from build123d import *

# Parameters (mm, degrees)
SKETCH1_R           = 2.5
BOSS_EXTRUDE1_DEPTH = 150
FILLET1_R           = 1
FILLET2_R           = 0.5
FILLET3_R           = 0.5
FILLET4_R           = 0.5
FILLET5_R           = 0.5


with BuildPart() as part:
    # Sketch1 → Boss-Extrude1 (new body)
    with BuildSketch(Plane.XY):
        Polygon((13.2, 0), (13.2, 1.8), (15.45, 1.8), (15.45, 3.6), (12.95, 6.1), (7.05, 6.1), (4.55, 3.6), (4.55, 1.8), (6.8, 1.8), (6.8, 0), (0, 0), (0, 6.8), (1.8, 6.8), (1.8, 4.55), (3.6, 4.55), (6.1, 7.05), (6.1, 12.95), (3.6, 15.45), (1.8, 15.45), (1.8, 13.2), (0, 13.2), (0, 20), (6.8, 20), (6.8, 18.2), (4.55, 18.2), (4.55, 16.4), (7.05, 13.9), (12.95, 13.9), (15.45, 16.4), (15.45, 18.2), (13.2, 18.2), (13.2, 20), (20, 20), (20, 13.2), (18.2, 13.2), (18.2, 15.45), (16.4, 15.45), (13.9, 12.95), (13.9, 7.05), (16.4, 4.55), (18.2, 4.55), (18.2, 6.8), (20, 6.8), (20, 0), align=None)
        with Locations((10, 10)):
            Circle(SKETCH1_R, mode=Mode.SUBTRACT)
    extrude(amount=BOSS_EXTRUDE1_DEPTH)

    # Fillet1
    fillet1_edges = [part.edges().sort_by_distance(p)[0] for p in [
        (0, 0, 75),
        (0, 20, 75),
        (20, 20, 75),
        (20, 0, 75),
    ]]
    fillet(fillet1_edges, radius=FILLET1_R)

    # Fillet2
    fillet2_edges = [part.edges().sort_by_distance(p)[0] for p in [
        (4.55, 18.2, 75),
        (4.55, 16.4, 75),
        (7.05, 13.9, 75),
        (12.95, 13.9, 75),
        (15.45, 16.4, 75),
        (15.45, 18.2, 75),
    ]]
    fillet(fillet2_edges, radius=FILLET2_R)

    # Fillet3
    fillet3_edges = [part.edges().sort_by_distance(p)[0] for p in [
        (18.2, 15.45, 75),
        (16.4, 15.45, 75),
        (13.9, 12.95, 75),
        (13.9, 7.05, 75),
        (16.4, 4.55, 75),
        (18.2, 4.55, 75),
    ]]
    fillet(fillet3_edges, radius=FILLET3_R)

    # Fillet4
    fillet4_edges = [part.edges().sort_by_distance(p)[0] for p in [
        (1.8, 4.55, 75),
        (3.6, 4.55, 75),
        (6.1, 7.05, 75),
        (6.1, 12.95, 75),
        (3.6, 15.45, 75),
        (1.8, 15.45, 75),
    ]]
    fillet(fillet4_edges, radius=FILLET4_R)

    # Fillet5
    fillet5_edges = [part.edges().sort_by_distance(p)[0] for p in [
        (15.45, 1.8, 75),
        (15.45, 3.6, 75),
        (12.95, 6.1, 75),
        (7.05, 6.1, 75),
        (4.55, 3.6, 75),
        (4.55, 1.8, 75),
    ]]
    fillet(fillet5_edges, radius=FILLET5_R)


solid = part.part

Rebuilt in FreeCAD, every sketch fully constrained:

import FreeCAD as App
import Part
import Sketcher
from FreeCAD import Vector
Q = App.Units.Quantity


def edges_at(feature, points):
    """Names of the edges that pass closest to the given points."""
    edges = feature.Shape.Edges
    near = lambda p: min(range(len(edges)), key=lambda i: edges[i].distToShape(Part.Vertex(*p))[0])
    return sorted({f"Edge{near(p) + 1}" for p in points})


def add_polygon(sketch, points):
    """Adds a closed chain of lines whose ends are joined by coincident constraints."""
    first, n = sketch.GeometryCount, len(points)
    for a, b in zip(points, points[1:] + points[:1]):
        sketch.addGeometry(Part.LineSegment(App.Vector(*a, 0), App.Vector(*b, 0)), False)
    for i in range(n):
        sketch.addConstraint(Sketcher.Constraint("Coincident", first + i, 2, first + (i + 1) % n, 1))

doc = App.newDocument("Part")
params = doc.addObject("Spreadsheet::Sheet", "Params")
for row, (alias, value) in enumerate([
    ("sketch1_diameter", "5 mm"),
    ("sketch1_width", "6.8 mm"),
    ("sketch1_width2", "1.8 mm"),
    ("sketch1_width3", "5.9 mm"),
    ("sketch1_width4", "2.25 mm"),
    ("pad1_length", "150 mm"),
    ("fillet_radius", "1 mm"),
    ("fillet2_radius", "0.5 mm"),
    ("fillet3_radius", "0.5 mm"),
    ("fillet4_radius", "0.5 mm"),
    ("fillet5_radius", "0.5 mm"),
], start=1):
    params.set(f"A{row}", alias)
    params.set(f"B{row}", "=" + value)
    params.setAlias(f"B{row}", alias)

body = doc.addObject("PartDesign::Body", "Body")

# Sketch on XY plane
sketch1 = doc.addObject("Sketcher::SketchObject", "Sketch")
body.addObject(sketch1)
sketch1.AttachmentSupport = (doc.XY_Plane, [""])
sketch1.MapMode = "FlatFace"
add_polygon(sketch1, [(13.2, 1.8), (13.2, 0), (20, 0), (20, 6.8), (18.2, 6.8), (18.2, 4.55), (16.4, 4.55), (13.9, 7.05), (13.9, 12.95), (16.4, 15.45), (18.2, 15.45), (18.2, 13.2), (20, 13.2), (20, 20), (13.2, 20), (13.2, 18.2), (15.45, 18.2), (15.45, 16.4), (12.95, 13.9), (7.05, 13.9), (4.55, 16.4), (4.55, 18.2), (6.8, 18.2), (6.8, 20), (0, 20), (0, 13.2), (1.8, 13.2), (1.8, 15.45), (3.6, 15.45), (6.1, 12.95), (6.1, 7.05), (3.6, 4.55), (1.8, 4.55), (1.8, 6.8), (0, 6.8), (0, 0), (6.8, 0), (6.8, 1.8), (4.55, 1.8), (4.55, 3.6), (7.05, 6.1), (12.95, 6.1), (15.45, 3.6), (15.45, 1.8)])  # lines 0-43
sketch1.addGeometry(Part.Circle(Vector(10, 10, 0), Vector(0, 0, 1), 2.5), False)  # 44
sketch1.addConstraint([
    Sketcher.Constraint("Vertical", 0),
    Sketcher.Constraint("Horizontal", 1),
    Sketcher.Constraint("Vertical", 2),
    Sketcher.Constraint("Horizontal", 3),
    Sketcher.Constraint("Vertical", 4),
    Sketcher.Constraint("Horizontal", 5),
    Sketcher.Constraint("Vertical", 7),
    Sketcher.Constraint("Horizontal", 9),
    Sketcher.Constraint("Vertical", 10),
    Sketcher.Constraint("Horizontal", 11),
    Sketcher.Constraint("Vertical", 12),
    Sketcher.Constraint("Horizontal", 13),
    Sketcher.Constraint("Vertical", 14),
    Sketcher.Constraint("Horizontal", 15),
    Sketcher.Constraint("Vertical", 16),
    Sketcher.Constraint("Horizontal", 18),
    Sketcher.Constraint("Vertical", 20),
    Sketcher.Constraint("Horizontal", 21),
    Sketcher.Constraint("Vertical", 22),
    Sketcher.Constraint("Horizontal", 23),
    Sketcher.Constraint("Vertical", 24),
    Sketcher.Constraint("Horizontal", 25),
    Sketcher.Constraint("Vertical", 26),
    Sketcher.Constraint("Horizontal", 27),
    Sketcher.Constraint("Vertical", 29),
    Sketcher.Constraint("Horizontal", 31),
    Sketcher.Constraint("Vertical", 32),
    Sketcher.Constraint("Horizontal", 33),
    Sketcher.Constraint("Vertical", 34),
    Sketcher.Constraint("Horizontal", 35),
    Sketcher.Constraint("Vertical", 36),
    Sketcher.Constraint("Horizontal", 37),
    Sketcher.Constraint("Vertical", 38),
    Sketcher.Constraint("Horizontal", 40),
    Sketcher.Constraint("Vertical", 42),
    Sketcher.Constraint("Horizontal", 43),
    Sketcher.Constraint("Coincident", 34, 2, -1, 1),
    Sketcher.Constraint("PointOnObject", 0, 2, -1),
    Sketcher.Constraint("PointOnObject", 23, 2, -2),
    Sketcher.Constraint("Perpendicular", 6, 8),
    Sketcher.Constraint("Parallel", 8, 17),
    Sketcher.Constraint("Perpendicular", 17, 19),
    Sketcher.Constraint("Parallel", 19, 28),
    Sketcher.Constraint("Perpendicular", 28, 30),
    Sketcher.Constraint("Parallel", 30, 39),
    Sketcher.Constraint("Perpendicular", 39, 41),
    Sketcher.Constraint("Horizontal", 16, 2, 19, 2),
    Sketcher.Constraint("Horizontal", 15, 2, 20, 2),
    Sketcher.Constraint("Horizontal", 13, 2, 22, 2),
    Sketcher.Constraint("Horizontal", 11, 2, 24, 2),
    Sketcher.Constraint("Horizontal", 9, 2, 26, 2),
    Sketcher.Constraint("Horizontal", 7, 2, 28, 2),
    Sketcher.Constraint("Horizontal", 6, 2, 29, 2),
    Sketcher.Constraint("Horizontal", 5, 2, 30, 2),
    Sketcher.Constraint("Horizontal", 3, 2, 32, 2),
    Sketcher.Constraint("Horizontal", 38, 2, 41, 2),
    Sketcher.Constraint("Horizontal", 37, 2, 42, 2),
    Sketcher.Constraint("Vertical", 5, 2, 8, 2),
    Sketcher.Constraint("Vertical", 4, 2, 9, 2),
    Sketcher.Constraint("Vertical", 2, 2, 11, 2),
    Sketcher.Constraint("Vertical", 0, 2, 13, 2),
    Sketcher.Constraint("Vertical", 27, 2, 30, 2),
    Sketcher.Constraint("Vertical", 26, 2, 31, 2),
    Sketcher.Constraint("Vertical", 22, 2, 35, 2),
    Sketcher.Constraint("Vertical", 20, 2, 37, 2),
    Sketcher.Constraint("Vertical", 18, 2, 39, 2),
    Sketcher.Constraint("Vertical", 17, 2, 40, 2),
    Sketcher.Constraint("Equal", 3, 5),
    Sketcher.Constraint("Equal", 15, 21),
    Sketcher.Constraint("Equal", 13, 23),
    Sketcher.Constraint("Equal", 11, 25),
    Sketcher.Constraint("Equal", 25, 27),
    Sketcher.Constraint("Equal", 33, 0),
    Sketcher.Constraint("Equal", 35, 2),
    Sketcher.Constraint("Equal", 43, 4),
    Sketcher.Constraint("Equal", 40, 7),
    Sketcher.Constraint("Equal", 4, 10),
    Sketcher.Constraint("Equal", 2, 12),
    Sketcher.Constraint("Equal", 0, 14),
    Sketcher.Constraint("Equal", 14, 16),
    Sketcher.Constraint("Equal", 36, 38),
    Sketcher.Constraint("Equal", 8, 17),
    Sketcher.Constraint("Diameter", 44, Q("5 mm")),
    Sketcher.Constraint("DistanceX", 1, 1, 1, 2, Q("6.8 mm")),
    Sketcher.Constraint("DistanceX", 3, 2, 3, 1, Q("1.8 mm")),
    Sketcher.Constraint("DistanceX", 18, 2, 18, 1, Q("5.9 mm")),
    Sketcher.Constraint("DistanceX", -1, 1, 44, 3, Q("10 mm")),
    Sketcher.Constraint("DistanceY", -1, 1, 44, 3, Q("10 mm")),
    Sketcher.Constraint("DistanceX", -1, 1, 1, 2, Q("20 mm")),
    Sketcher.Constraint("DistanceX", 15, 1, 15, 2, Q("2.25 mm")),
])
sketch1.setExpression("Constraints[126]", "Params.sketch1_diameter")
sketch1.setExpression("Constraints[127]", "Params.sketch1_width")
sketch1.setExpression("Constraints[128]", "Params.sketch1_width2")
sketch1.setExpression("Constraints[129]", "Params.sketch1_width3")
sketch1.setExpression("Constraints[133]", "Params.sketch1_width4")
pad1 = doc.addObject("PartDesign::Pad", "Pad")
body.addObject(pad1)
pad1.Profile = sketch1
pad1.setExpression("Length", "Params.pad1_length")
doc.recompute()

fillet = doc.addObject("PartDesign::Fillet", "Fillet")
body.addObject(fillet)
fillet.Base = (pad1, edges_at(pad1, [
    (0, 0, 75),
    (0, 20, 75),
    (20, 20, 75),
    (20, 0, 75),
]))
fillet.setExpression("Radius", "Params.fillet_radius")
doc.recompute()

fillet2 = doc.addObject("PartDesign::Fillet", "Fillet001")
body.addObject(fillet2)
fillet2.Base = (fillet, edges_at(fillet, [
    (4.55, 18.2, 75),
    (4.55, 16.4, 75),
    (7.05, 13.9, 75),
    (12.95, 13.9, 75),
    (15.45, 16.4, 75),
    (15.45, 18.2, 75),
]))
fillet2.setExpression("Radius", "Params.fillet2_radius")
doc.recompute()

fillet3 = doc.addObject("PartDesign::Fillet", "Fillet002")
body.addObject(fillet3)
fillet3.Base = (fillet2, edges_at(fillet2, [
    (18.2, 15.45, 75),
    (16.4, 15.45, 75),
    (13.9, 12.95, 75),
    (13.9, 7.05, 75),
    (16.4, 4.55, 75),
    (18.2, 4.55, 75),
]))
fillet3.setExpression("Radius", "Params.fillet3_radius")
doc.recompute()

fillet4 = doc.addObject("PartDesign::Fillet", "Fillet003")
body.addObject(fillet4)
fillet4.Base = (fillet3, edges_at(fillet3, [
    (1.8, 4.55, 75),
    (3.6, 4.55, 75),
    (6.1, 7.05, 75),
    (6.1, 12.95, 75),
    (3.6, 15.45, 75),
    (1.8, 15.45, 75),
]))
fillet4.setExpression("Radius", "Params.fillet4_radius")
doc.recompute()

fillet5 = doc.addObject("PartDesign::Fillet", "Fillet004")
body.addObject(fillet5)
fillet5.Base = (fillet4, edges_at(fillet4, [
    (15.45, 1.8, 75),
    (15.45, 3.6, 75),
    (12.95, 6.1, 75),
    (7.05, 6.1, 75),
    (4.55, 3.6, 75),
    (4.55, 1.8, 75),
]))
fillet5.setExpression("Radius", "Params.fillet5_radius")

doc.recompute()
